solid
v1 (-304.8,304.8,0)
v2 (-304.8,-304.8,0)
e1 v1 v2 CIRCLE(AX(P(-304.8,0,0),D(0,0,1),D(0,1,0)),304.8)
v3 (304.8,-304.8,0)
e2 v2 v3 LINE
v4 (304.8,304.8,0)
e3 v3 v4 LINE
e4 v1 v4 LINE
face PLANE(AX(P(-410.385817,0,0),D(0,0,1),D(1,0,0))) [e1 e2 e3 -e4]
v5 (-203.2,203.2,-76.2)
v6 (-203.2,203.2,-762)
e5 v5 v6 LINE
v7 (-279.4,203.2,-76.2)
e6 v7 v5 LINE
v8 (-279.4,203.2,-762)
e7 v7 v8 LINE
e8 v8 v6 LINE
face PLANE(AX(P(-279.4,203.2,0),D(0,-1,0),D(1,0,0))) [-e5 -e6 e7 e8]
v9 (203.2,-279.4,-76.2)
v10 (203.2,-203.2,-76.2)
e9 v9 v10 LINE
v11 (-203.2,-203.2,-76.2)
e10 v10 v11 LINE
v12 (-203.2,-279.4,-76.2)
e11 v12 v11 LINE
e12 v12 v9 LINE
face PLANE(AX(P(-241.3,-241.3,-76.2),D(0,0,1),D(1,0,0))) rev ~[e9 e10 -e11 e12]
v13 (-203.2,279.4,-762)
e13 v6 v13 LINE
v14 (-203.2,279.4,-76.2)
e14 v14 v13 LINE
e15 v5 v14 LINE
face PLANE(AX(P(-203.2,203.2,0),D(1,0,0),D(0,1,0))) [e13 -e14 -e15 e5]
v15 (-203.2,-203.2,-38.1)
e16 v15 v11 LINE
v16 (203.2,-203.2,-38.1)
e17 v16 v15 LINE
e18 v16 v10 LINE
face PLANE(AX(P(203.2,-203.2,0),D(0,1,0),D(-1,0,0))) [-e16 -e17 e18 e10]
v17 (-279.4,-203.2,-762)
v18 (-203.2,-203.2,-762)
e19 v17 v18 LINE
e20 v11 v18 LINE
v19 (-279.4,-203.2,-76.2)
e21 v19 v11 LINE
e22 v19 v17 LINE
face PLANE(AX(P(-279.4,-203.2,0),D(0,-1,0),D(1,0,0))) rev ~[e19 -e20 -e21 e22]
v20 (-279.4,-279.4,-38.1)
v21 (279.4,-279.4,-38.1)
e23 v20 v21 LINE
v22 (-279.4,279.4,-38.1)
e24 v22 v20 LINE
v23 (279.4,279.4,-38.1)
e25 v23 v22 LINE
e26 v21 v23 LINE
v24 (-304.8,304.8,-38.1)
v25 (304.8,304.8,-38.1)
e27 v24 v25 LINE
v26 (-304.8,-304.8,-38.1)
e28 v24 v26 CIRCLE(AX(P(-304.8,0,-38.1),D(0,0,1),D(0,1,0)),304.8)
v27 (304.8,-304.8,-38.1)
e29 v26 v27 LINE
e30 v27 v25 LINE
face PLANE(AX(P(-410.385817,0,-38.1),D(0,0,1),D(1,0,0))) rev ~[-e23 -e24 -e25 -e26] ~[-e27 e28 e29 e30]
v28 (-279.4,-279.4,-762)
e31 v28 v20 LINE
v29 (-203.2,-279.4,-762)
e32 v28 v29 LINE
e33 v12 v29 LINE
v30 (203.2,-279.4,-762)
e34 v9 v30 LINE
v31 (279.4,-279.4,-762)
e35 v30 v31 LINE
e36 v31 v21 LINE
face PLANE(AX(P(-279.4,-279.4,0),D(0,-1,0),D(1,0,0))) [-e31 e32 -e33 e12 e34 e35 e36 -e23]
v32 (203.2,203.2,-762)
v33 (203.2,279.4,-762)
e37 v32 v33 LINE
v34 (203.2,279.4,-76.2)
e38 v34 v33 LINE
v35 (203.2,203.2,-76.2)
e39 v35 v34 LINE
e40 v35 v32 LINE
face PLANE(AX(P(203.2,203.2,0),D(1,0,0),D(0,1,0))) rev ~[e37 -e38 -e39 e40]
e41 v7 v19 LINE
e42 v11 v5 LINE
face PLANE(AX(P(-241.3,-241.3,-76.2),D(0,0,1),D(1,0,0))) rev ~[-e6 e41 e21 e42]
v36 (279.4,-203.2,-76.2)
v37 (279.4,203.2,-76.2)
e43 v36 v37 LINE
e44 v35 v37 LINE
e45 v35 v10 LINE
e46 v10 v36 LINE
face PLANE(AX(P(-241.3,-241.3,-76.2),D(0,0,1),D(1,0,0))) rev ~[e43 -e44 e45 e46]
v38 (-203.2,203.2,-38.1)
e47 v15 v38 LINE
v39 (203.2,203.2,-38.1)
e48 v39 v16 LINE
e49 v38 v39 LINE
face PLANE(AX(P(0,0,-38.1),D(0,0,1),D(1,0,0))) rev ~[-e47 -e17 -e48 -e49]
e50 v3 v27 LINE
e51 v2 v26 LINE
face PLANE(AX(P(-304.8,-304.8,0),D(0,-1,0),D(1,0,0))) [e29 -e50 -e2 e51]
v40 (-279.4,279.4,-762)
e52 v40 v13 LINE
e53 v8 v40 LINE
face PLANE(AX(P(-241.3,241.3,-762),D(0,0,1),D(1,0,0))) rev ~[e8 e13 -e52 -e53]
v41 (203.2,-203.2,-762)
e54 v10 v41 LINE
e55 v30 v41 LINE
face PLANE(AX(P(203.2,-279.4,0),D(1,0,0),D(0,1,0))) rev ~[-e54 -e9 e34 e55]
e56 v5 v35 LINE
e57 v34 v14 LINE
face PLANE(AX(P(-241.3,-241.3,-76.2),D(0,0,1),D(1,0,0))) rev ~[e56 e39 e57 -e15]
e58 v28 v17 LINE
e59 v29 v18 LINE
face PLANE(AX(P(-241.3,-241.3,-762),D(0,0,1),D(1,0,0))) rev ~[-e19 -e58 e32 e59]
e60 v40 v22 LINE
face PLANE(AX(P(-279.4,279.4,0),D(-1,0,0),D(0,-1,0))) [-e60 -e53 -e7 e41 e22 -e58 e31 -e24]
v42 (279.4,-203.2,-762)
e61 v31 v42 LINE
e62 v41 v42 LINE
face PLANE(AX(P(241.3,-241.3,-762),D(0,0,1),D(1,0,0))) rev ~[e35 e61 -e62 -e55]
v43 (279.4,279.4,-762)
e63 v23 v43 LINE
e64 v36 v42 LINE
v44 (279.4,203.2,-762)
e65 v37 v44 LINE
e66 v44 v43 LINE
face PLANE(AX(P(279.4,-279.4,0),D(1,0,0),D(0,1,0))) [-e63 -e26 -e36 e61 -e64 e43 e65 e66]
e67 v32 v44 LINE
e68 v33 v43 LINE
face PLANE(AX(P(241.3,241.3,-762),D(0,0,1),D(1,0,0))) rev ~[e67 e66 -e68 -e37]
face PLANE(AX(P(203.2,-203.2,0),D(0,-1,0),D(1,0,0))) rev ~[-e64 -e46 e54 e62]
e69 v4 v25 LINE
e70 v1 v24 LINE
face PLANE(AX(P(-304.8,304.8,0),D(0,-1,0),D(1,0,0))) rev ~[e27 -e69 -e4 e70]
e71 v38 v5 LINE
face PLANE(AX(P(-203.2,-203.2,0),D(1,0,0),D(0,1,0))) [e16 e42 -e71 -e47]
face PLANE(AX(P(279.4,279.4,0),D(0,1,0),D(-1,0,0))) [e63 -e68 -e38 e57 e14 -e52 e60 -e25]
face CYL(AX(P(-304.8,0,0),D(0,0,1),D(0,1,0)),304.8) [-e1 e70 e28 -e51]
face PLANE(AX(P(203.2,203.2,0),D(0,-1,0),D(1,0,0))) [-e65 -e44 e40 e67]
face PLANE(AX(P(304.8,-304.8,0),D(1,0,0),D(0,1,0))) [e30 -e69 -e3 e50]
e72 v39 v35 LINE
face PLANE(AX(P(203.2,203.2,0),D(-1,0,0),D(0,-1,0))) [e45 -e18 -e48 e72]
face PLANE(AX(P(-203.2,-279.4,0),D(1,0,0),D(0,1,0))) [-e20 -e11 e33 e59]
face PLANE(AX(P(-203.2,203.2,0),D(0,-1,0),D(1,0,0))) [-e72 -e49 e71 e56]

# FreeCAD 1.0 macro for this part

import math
import FreeCAD as App
import Part
import Sketcher

V = App.Vector
Q = App.Units.Quantity


def add_polygon(sketch, points):
    """Adds a closed chain of lines whose ends are joined by coincident constraints."""
    first, n = sketch.GeometryCount, len(points)
    for a, b in zip(points, points[1:] + points[:1]):
        sketch.addGeometry(Part.LineSegment(App.Vector(*a, 0), App.Vector(*b, 0)), False)
    for i in range(n):
        sketch.addConstraint(Sketcher.Constraint("Coincident", first + i, 2, first + (i + 1) % n, 1))

doc = App.newDocument("Part")
body = doc.addObject("PartDesign::Body", "Body")

# Sketch on XY plane
sketch1 = body.newObject("Sketcher::SketchObject", "Sketch")
sketch1.AttachmentSupport = (doc.getObject("XY_Plane"), [""])
sketch1.MapMode = "FlatFace"
add_polygon(sketch1, [(-304.8, 304.8), (-304.8, -304.8), (304.8, -304.8), (304.8, 304.8)])  # lines 0-3
sketch1.addConstraint(Sketcher.Constraint("Vertical", 0))
sketch1.addConstraint(Sketcher.Constraint("Horizontal", 1))
sketch1.addConstraint(Sketcher.Constraint("Vertical", 2))
sketch1.addConstraint(Sketcher.Constraint("Horizontal", 3))
sketch1.addConstraint(Sketcher.Constraint("Symmetric", 0, 2, 2, 2, -1, 1))
sketch1.addConstraint(Sketcher.Constraint("Equal", 3, 0))
sketch1.addConstraint(Sketcher.Constraint("DistanceX", 1, 1, 1, 2, Q("24 in")))
pad1 = body.newObject("PartDesign::Pad", "Pad")
pad1.Profile = sketch1
pad1.Length = Q("1.5 in")
pad1.Reversed = True

# Sketch on XY plane
sketch2 = body.newObject("Sketcher::SketchObject", "Sketch001")
sketch2.AttachmentSupport = (doc.getObject("XY_Plane"), [""])
sketch2.MapMode = "FlatFace"
add_polygon(sketch2, [(279.4, 279.4), (-279.4, 279.4), (-279.4, -279.4), (279.4, -279.4)])  # lines 0-3
add_polygon(sketch2, [(-203.2, -203.2), (-203.2, 203.2), (203.2, 203.2), (203.2, -203.2)])  # lines 4-7
sketch2.addConstraint(Sketcher.Constraint("Horizontal", 0))
sketch2.addConstraint(Sketcher.Constraint("Vertical", 1))
sketch2.addConstraint(Sketcher.Constraint("Horizontal", 2))
sketch2.addConstraint(Sketcher.Constraint("Vertical", 3))
sketch2.addConstraint(Sketcher.Constraint("Vertical", 4))
sketch2.addConstraint(Sketcher.Constraint("Horizontal", 5))
sketch2.addConstraint(Sketcher.Constraint("Vertical", 6))
sketch2.addConstraint(Sketcher.Constraint("Horizontal", 7))
sketch2.addConstraint(Sketcher.Constraint("Symmetric", 0, 2, 2, 2, -1, 1))
sketch2.addConstraint(Sketcher.Constraint("Symmetric", 4, 2, 6, 2, -1, 1))
sketch2.addConstraint(Sketcher.Constraint("Equal", 2, 1))
sketch2.addConstraint(Sketcher.Constraint("Equal", 7, 4))
sketch2.addConstraint(Sketcher.Constraint("DistanceX", 0, 2, 0, 1, Q("22 in")))
sketch2.addConstraint(Sketcher.Constraint("DistanceX", 5, 1, 5, 2, Q("16 in")))
pad2 = body.newObject("PartDesign::Pad", "Pad001")
pad2.Profile = sketch2
pad2.Length = Q("3 in")
pad2.Reversed = True

# Sketch on XY plane
sketch3 = body.newObject("Sketcher::SketchObject", "Sketch002")
sketch3.AttachmentSupport = (doc.getObject("XY_Plane"), [""])
sketch3.MapMode = "FlatFace"
add_polygon(sketch3, [(-279.4, 279.4), (-279.4, 203.2), (-203.2, 203.2), (-203.2, 279.4)])  # lines 0-3
add_polygon(sketch3, [(-279.4, -203.2), (-279.4, -279.4), (-203.2, -279.4), (-203.2, -203.2)])  # lines 4-7
add_polygon(sketch3, [(203.2, -203.2), (203.2, -279.4), (279.4, -279.4), (279.4, -203.2)])  # lines 8-11
add_polygon(sketch3, [(203.2, 279.4), (203.2, 203.2), (279.4, 203.2), (279.4, 279.4)])  # lines 12-15
sketch3.addConstraint(Sketcher.Constraint("Vertical", 0))
sketch3.addConstraint(Sketcher.Constraint("Horizontal", 1))
sketch3.addConstraint(Sketcher.Constraint("Vertical", 2))
sketch3.addConstraint(Sketcher.Constraint("Horizontal", 3))
sketch3.addConstraint(Sketcher.Constraint("Vertical", 4))
sketch3.addConstraint(Sketcher.Constraint("Horizontal", 5))
sketch3.addConstraint(Sketcher.Constraint("Vertical", 6))
sketch3.addConstraint(Sketcher.Constraint("Horizontal", 7))
sketch3.addConstraint(Sketcher.Constraint("Vertical", 8))
sketch3.addConstraint(Sketcher.Constraint("Horizontal", 9))
sketch3.addConstraint(Sketcher.Constraint("Vertical", 10))
sketch3.addConstraint(Sketcher.Constraint("Horizontal", 11))
sketch3.addConstraint(Sketcher.Constraint("Vertical", 12))
sketch3.addConstraint(Sketcher.Constraint("Horizontal", 13))
sketch3.addConstraint(Sketcher.Constraint("Vertical", 14))
sketch3.addConstraint(Sketcher.Constraint("Horizontal", 15))
sketch3.addConstraint(Sketcher.Constraint("Symmetric", 2, 2, 8, 2, -1, 1))
sketch3.addConstraint(Sketcher.Constraint("Symmetric", 0, 2, 10, 2, -1, 1))
sketch3.addConstraint(Sketcher.Constraint("Symmetric", 6, 2, 12, 2, -1, 1))
sketch3.addConstraint(Sketcher.Constraint("Symmetric", 4, 2, 14, 2, -1, 1))
sketch3.addConstraint(Sketcher.Constraint("Symmetric", 5, 2, 8, 2, -2))
sketch3.addConstraint(Sketcher.Constraint("Symmetric", 7, 2, 10, 2, -2))
sketch3.addConstraint(Sketcher.Constraint("Equal", 15, 0))
sketch3.addConstraint(Sketcher.Constraint("DistanceX", 1, 1, 1, 2, Q("3 in")))
sketch3.addConstraint(Sketcher.Constraint("DistanceX", 0, 2, -1, 1, Q("11 in")))
sketch3.addConstraint(Sketcher.Constraint("DistanceY", -1, 1, 0, 2, Q("8 in")))
pad3 = body.newObject("PartDesign::Pad", "Pad002")
pad3.Profile = sketch3
pad3.Length = Q("30 in")
pad3.Reversed = True

# Sketch on XY plane
sketch4 = body.newObject("Sketcher::SketchObject", "Sketch003")
sketch4.AttachmentSupport = (doc.getObject("XY_Plane"), [""])
sketch4.MapMode = "FlatFace"
sketch4.addGeometry(Part.ArcOfCircle(Part.Circle(V(-304.8, 0, 0), V(0, 0, 1), 304.8), math.radians(90), math.radians(270)), False)
sketch4.addGeometry(Part.LineSegment(V(-304.8, -304.8, 0), V(-304.8, 304.8, 0)), False)
sketch4.addConstraint(Sketcher.Constraint("Coincident", 0, 1, 1, 2))
sketch4.addConstraint(Sketcher.Constraint("Coincident", 1, 1, 0, 2))
sketch4.addConstraint(Sketcher.Constraint("Vertical", 1))
sketch4.addConstraint(Sketcher.Constraint("PointOnObject", 0, 3, -1))
sketch4.addConstraint(Sketcher.Constraint("Radius", 0, Q("12 in")))
sketch4.addConstraint(Sketcher.Constraint("DistanceX", 0, 3, -1, 1, Q("12 in")))
sketch4.addConstraint(Sketcher.Constraint("DistanceX", 0, 1, -1, 1, Q("12 in")))
pad4 = body.newObject("PartDesign::Pad", "Pad003")
pad4.Profile = sketch4
pad4.Length = Q("1.5 in")
pad4.Reversed = True

doc.recompute()
